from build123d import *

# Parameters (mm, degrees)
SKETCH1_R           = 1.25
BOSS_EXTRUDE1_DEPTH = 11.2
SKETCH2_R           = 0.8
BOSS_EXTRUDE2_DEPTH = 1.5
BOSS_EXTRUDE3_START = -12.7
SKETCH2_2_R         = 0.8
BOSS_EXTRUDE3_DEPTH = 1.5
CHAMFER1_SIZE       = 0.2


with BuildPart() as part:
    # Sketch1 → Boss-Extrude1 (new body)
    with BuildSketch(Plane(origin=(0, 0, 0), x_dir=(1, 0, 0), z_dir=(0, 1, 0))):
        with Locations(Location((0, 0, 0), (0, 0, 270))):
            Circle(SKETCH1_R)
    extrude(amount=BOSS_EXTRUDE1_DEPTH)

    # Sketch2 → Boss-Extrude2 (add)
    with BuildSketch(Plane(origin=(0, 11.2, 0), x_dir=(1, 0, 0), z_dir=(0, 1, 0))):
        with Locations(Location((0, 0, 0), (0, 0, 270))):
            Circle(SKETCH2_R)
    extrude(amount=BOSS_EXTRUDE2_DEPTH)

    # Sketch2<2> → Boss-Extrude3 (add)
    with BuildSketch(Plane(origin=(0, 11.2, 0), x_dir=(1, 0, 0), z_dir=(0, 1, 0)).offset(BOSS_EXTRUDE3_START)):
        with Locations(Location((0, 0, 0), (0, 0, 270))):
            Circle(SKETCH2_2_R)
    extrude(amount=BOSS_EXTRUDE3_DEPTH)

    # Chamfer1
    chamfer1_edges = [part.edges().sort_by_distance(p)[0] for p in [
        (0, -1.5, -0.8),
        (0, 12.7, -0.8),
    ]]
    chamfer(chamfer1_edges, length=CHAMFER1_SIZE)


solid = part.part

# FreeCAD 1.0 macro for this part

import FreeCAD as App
import Part
import Sketcher


def edges_at(feature, points):
    """Names of the edges that pass closest to the given points."""
    edges = feature.Shape.Edges
    near = lambda p: min(range(len(edges)), key=lambda i: edges[i].distToShape(Part.Vertex(*p))[0])
    return sorted({f"Edge{near(p) + 1}" for p in points})

doc = App.newDocument("Part")
body = doc.addObject("PartDesign::Body", "Body")

sketch1 = doc.addObject("Sketcher::SketchObject", "Sketch")
body.addObject(sketch1)
sketch1.AttachmentSupport = (doc.XZ_Plane, [""])
sketch1.MapMode = "FlatFace"
sketch1.addGeometry(Part.Circle(App.Vector(0, 0, 0), App.Vector(0, 0, 1), 1.2), False)
sketch1.addConstraint([
    Sketcher.Constraint("Coincident", 0, 3, -1, 1),
    Sketcher.Constraint("Diameter", 0, 2.5),
])
pad1 = doc.addObject("PartDesign::Pad", "Pad")
body.addObject(pad1)
pad1.Profile = sketch1
pad1.Length = 11.2
pad1.Reversed = True

sketch2 = doc.addObject("Sketcher::SketchObject", "Sketch001")
body.addObject(sketch2)
sketch2.AttachmentSupport = (doc.XZ_Plane, [""])
sketch2.MapMode = "FlatFace"
sketch2.AttachmentOffset = App.Placement(App.Vector(0, 0, -11.2), App.Rotation())
sketch2.addGeometry(Part.Circle(App.Vector(0, 0, 0), App.Vector(0, 0, 1), 0.8), False)
sketch2.addConstraint([
    Sketcher.Constraint("Coincident", 0, 3, -1, 1),
    Sketcher.Constraint("Diameter", 0, 1.6),
])
pad2 = doc.addObject("PartDesign::Pad", "Pad001")
body.addObject(pad2)
pad2.Profile = sketch2
pad2.Length = 1.5
pad2.Reversed = True

sketch3 = doc.addObject("Sketcher::SketchObject", "Sketch002")
body.addObject(sketch3)
sketch3.AttachmentSupport = (doc.XZ_Plane, [""])
sketch3.MapMode = "FlatFace"
sketch3.AttachmentOffset = App.Placement(App.Vector(0, 0, 1.5), App.Rotation())
sketch3.addGeometry(Part.Circle(App.Vector(0, 0, 0), App.Vector(0, 0, 1), 0.8), False)
sketch3.addConstraint([
    Sketcher.Constraint("Coincident", 0, 3, -1, 1),
    Sketcher.Constraint("Diameter", 0, 1.6),
])
pad3 = doc.addObject("PartDesign::Pad", "Pad002")
body.addObject(pad3)
pad3.Profile = sketch3
pad3.Length = 1.5
pad3.Reversed = True
doc.recompute()

chamfer = doc.addObject("PartDesign::Chamfer", "Chamfer")
body.addObject(chamfer)
chamfer.Base = (pad3, edges_at(pad3, [(0, -1.5, -0.8), (0, 12.7, -0.8)]))
chamfer.Size = 0.2

doc.recompute()
